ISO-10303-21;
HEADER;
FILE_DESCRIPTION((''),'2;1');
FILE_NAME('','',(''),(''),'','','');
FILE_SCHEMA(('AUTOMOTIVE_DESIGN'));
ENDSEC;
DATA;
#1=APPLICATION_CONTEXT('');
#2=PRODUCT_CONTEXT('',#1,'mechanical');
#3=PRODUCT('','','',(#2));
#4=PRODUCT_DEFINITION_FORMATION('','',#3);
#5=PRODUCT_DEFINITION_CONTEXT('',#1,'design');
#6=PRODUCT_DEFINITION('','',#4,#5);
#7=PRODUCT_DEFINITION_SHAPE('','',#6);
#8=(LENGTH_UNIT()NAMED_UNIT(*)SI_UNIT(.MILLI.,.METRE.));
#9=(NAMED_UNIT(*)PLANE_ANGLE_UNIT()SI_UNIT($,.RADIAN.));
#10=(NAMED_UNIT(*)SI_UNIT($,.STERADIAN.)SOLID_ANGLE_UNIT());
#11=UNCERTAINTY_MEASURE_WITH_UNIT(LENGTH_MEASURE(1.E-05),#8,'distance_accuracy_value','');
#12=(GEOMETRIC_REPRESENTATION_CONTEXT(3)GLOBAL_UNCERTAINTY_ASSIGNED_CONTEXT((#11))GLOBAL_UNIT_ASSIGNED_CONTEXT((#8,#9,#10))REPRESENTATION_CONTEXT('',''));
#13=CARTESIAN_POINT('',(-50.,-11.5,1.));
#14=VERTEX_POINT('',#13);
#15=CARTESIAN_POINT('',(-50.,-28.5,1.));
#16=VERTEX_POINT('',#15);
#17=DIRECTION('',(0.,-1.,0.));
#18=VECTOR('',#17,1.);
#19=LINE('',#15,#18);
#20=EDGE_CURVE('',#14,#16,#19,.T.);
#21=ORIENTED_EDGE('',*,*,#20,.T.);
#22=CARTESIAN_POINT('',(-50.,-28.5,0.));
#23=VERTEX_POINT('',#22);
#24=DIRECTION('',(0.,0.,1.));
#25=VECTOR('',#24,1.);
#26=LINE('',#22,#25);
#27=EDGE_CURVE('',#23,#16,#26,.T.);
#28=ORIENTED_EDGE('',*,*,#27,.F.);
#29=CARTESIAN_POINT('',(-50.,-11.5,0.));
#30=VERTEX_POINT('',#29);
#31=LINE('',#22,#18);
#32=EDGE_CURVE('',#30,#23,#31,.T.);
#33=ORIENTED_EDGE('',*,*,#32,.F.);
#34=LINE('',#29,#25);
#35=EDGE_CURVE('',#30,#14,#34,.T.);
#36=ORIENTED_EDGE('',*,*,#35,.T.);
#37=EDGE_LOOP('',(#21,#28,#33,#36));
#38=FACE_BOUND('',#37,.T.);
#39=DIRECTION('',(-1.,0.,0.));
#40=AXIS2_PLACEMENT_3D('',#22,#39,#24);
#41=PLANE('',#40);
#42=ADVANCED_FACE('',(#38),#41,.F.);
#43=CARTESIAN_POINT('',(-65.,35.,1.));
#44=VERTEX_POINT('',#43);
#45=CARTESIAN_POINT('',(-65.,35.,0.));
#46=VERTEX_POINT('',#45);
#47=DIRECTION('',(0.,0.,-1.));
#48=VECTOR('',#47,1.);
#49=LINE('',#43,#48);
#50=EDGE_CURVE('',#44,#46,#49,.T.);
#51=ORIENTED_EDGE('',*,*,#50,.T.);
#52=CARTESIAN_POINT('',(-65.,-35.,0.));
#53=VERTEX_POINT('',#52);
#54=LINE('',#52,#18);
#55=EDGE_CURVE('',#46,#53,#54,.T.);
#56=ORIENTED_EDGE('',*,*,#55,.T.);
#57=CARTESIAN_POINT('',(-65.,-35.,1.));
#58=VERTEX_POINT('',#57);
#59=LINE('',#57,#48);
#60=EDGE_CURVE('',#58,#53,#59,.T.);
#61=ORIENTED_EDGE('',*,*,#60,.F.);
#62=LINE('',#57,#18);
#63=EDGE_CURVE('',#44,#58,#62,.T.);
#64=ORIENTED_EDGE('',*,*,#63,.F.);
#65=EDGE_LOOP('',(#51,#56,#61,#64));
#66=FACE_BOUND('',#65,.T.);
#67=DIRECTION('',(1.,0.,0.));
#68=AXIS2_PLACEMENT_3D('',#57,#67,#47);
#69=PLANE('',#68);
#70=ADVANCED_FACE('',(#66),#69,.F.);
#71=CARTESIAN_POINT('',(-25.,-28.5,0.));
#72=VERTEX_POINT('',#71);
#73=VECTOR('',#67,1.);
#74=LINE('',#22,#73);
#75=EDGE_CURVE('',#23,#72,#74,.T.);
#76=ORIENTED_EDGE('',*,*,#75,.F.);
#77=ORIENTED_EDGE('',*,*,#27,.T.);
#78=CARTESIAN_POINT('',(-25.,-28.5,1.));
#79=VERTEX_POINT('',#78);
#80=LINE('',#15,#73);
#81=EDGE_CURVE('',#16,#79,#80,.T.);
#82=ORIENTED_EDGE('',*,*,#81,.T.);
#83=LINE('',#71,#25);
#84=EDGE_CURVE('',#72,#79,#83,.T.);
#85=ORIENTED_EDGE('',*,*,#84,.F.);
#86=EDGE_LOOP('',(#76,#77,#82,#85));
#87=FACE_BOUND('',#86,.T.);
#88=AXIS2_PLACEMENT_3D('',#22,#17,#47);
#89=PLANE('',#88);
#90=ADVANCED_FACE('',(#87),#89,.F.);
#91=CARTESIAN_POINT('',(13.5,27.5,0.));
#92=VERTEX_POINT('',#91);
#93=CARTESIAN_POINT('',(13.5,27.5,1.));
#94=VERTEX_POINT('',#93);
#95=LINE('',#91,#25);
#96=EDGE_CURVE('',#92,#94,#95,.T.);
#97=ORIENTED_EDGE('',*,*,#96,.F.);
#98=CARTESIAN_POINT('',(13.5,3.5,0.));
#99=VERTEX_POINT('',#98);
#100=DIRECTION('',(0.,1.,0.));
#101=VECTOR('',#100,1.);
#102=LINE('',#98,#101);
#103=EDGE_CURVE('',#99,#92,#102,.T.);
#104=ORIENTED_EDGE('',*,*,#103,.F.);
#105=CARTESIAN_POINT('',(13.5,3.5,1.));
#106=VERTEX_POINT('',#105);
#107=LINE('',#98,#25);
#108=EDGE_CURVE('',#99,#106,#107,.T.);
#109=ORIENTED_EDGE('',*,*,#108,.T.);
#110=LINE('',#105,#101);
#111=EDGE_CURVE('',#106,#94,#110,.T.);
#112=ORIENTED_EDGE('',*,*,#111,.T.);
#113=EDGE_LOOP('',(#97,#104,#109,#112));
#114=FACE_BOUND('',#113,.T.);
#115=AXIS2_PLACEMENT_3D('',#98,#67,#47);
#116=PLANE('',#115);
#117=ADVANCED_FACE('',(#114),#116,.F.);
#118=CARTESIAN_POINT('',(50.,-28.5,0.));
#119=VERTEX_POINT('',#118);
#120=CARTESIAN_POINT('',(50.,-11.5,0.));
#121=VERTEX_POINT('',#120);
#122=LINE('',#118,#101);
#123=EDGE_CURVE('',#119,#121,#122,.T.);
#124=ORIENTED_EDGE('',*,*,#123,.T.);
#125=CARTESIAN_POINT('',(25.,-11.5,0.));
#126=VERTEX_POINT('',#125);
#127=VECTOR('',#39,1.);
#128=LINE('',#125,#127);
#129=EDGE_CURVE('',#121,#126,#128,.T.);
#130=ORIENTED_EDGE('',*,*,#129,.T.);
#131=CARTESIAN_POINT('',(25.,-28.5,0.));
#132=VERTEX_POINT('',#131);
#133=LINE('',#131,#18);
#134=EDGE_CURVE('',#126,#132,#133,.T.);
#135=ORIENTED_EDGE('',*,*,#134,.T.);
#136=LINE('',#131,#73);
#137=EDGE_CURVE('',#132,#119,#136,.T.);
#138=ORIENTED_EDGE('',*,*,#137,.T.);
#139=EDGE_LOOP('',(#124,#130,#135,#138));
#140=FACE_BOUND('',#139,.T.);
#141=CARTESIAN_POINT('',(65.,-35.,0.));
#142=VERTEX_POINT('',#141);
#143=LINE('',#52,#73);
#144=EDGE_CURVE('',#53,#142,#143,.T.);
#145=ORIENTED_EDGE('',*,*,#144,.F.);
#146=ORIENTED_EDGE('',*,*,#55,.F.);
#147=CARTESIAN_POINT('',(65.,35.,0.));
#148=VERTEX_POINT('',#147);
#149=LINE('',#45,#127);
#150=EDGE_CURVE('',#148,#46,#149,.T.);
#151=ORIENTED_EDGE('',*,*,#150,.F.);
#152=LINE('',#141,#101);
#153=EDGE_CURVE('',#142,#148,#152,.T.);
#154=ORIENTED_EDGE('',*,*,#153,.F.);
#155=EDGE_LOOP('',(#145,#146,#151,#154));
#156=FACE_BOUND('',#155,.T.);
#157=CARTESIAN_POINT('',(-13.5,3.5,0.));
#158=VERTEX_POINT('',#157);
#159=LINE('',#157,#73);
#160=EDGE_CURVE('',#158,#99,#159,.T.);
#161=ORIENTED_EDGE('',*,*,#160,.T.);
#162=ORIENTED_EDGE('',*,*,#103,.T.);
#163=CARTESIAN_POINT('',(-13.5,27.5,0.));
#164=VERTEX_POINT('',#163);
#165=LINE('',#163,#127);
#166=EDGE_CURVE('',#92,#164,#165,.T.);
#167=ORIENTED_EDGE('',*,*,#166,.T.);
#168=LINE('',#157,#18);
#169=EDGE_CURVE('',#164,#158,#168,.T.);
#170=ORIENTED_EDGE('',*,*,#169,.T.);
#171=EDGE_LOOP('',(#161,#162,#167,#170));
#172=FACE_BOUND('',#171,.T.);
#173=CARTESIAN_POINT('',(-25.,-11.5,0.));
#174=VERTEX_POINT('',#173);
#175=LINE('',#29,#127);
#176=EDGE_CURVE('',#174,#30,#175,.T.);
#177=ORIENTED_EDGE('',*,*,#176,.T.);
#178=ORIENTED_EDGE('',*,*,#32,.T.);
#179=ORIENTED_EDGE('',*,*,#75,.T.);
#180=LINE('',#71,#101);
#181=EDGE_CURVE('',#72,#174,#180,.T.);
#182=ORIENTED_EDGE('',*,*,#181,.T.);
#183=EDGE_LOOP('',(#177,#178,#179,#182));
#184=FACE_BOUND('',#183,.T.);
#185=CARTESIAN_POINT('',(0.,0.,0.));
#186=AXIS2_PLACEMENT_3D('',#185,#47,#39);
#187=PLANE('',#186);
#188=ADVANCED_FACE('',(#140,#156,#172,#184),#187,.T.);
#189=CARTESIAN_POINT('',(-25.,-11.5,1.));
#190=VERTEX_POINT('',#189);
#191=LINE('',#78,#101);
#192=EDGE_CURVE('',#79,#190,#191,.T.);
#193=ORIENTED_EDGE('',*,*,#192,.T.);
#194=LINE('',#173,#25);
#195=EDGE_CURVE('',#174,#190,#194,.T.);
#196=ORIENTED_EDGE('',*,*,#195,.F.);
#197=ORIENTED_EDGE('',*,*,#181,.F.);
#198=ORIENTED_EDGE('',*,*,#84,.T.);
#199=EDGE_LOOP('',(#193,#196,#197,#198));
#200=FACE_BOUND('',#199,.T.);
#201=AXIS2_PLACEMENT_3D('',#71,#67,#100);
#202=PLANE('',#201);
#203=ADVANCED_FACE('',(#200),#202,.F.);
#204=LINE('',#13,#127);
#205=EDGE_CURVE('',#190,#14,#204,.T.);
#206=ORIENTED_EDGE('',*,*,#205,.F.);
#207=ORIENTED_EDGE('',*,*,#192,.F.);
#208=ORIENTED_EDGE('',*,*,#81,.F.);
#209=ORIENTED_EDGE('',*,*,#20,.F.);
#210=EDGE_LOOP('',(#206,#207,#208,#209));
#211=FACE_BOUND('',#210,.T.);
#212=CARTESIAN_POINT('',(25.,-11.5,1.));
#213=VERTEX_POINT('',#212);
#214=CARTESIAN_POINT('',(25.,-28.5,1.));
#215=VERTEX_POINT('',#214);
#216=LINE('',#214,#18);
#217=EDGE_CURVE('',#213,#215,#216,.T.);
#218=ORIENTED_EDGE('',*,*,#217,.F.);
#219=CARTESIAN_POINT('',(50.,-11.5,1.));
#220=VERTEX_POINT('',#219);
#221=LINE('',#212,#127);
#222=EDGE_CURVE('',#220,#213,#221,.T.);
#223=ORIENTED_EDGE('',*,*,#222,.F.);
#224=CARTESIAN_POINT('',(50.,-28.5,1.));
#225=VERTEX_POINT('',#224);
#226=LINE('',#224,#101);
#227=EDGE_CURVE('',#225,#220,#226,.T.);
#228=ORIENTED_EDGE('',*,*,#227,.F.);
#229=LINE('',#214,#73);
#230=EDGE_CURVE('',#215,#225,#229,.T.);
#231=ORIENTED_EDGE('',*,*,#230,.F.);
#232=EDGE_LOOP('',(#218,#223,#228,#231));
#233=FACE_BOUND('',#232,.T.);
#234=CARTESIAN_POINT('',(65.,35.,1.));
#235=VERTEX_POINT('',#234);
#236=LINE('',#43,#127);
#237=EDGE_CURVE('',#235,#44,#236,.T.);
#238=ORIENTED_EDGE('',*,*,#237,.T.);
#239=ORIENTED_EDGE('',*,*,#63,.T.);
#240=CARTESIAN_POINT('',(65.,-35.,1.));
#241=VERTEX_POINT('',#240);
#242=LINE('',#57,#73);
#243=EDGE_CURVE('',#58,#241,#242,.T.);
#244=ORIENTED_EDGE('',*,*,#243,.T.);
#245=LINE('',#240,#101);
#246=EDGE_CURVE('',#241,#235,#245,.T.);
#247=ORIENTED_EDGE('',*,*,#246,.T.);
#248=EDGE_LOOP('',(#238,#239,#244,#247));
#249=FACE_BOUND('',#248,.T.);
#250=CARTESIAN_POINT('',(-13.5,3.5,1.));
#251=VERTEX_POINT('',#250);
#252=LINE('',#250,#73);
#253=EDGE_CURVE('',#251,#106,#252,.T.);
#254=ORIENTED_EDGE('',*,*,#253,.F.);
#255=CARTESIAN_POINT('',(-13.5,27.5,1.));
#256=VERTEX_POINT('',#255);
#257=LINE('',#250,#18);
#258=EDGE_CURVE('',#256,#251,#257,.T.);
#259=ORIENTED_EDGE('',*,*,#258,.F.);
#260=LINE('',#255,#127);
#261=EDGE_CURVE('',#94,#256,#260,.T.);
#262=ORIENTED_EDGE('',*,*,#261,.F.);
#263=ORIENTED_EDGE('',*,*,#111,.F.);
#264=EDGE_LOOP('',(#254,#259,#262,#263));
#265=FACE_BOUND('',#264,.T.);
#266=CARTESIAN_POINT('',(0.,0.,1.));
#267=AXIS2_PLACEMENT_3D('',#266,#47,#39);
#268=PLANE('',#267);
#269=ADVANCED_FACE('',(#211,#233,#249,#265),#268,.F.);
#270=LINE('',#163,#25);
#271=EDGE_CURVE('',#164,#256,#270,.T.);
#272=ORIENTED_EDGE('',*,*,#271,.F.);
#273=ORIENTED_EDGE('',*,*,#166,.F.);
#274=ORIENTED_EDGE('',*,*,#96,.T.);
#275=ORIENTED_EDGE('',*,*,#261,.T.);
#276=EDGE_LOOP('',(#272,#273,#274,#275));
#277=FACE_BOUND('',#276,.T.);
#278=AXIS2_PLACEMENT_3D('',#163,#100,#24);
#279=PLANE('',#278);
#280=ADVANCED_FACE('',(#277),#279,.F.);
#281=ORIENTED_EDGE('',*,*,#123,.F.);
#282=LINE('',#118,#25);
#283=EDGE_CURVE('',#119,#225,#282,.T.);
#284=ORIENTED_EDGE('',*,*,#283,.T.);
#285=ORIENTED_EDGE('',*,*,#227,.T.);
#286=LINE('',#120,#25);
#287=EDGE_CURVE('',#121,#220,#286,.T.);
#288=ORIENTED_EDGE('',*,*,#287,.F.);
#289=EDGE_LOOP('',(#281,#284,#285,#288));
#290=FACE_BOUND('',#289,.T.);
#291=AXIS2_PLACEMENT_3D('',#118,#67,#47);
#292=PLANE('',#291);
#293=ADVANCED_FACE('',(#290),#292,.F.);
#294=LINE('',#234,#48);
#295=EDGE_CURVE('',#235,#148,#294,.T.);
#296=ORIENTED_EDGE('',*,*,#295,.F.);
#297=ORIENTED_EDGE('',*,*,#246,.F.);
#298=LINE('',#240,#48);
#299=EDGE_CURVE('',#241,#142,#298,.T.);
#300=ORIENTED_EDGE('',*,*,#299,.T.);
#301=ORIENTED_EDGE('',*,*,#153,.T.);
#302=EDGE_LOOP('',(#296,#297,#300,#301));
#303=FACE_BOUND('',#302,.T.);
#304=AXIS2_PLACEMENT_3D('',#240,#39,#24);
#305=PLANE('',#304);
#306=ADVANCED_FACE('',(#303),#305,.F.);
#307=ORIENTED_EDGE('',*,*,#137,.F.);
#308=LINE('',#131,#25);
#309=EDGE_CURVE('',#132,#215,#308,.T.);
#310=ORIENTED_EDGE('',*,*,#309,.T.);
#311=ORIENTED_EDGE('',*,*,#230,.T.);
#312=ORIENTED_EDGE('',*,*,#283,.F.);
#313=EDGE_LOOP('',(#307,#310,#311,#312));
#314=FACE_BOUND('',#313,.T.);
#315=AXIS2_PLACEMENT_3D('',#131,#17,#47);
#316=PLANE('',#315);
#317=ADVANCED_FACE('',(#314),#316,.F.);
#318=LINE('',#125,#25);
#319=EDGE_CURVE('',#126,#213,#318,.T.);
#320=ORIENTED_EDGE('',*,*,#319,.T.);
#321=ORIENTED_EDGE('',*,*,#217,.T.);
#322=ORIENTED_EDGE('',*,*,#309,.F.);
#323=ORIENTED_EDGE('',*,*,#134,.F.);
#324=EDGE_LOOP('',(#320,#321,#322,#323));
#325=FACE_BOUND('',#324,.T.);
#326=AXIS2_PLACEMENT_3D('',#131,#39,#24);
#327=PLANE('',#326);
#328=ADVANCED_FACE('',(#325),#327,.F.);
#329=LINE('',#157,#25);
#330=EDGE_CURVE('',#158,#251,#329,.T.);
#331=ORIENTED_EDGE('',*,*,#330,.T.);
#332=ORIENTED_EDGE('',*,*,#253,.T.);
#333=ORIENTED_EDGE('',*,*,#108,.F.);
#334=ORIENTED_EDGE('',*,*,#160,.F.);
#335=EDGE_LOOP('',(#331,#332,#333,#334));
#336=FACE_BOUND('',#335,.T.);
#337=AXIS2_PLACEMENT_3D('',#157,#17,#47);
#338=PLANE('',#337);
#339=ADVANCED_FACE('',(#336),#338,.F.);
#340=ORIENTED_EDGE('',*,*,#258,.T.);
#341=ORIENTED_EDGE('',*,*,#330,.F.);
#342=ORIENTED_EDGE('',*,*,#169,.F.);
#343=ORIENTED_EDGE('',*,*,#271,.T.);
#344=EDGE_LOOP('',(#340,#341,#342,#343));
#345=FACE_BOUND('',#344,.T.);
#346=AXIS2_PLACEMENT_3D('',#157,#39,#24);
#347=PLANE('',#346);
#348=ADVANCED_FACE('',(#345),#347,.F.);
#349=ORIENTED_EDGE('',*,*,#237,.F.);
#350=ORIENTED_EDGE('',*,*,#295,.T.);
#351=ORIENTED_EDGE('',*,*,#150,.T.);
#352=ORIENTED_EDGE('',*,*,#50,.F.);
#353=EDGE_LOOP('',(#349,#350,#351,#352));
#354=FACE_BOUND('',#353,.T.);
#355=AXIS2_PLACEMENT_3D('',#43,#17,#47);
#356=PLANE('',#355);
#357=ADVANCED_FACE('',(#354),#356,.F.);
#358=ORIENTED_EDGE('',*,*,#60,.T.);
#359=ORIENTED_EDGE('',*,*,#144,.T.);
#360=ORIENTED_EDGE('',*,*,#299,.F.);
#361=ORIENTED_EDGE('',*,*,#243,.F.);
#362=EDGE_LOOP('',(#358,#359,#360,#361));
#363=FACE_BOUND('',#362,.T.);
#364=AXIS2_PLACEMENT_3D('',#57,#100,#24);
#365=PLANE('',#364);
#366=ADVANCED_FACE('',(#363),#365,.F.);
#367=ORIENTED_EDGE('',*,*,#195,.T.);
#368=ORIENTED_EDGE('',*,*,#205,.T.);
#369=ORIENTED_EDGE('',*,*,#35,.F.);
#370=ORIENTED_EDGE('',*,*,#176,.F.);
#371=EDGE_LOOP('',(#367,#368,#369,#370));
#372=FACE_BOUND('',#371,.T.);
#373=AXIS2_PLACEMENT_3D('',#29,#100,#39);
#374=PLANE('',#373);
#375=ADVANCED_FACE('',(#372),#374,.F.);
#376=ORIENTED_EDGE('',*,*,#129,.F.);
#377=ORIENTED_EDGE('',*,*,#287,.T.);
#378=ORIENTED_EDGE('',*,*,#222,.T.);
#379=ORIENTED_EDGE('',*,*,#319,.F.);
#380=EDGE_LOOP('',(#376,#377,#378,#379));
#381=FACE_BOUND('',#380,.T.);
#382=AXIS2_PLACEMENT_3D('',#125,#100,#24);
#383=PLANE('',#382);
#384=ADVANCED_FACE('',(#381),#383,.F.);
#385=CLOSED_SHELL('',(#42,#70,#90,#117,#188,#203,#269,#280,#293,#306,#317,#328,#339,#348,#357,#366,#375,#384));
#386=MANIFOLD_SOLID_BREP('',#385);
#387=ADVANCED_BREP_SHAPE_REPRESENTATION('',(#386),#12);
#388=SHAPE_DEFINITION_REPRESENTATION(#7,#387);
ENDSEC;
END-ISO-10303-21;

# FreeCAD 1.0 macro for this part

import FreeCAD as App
import Part
import Sketcher
from FreeCAD import Vector


def add_polygon(sketch, points):
    """Adds a closed chain of lines whose ends are joined by coincident constraints."""
    first, n = sketch.GeometryCount, len(points)
    for a, b in zip(points, points[1:] + points[:1]):
        sketch.addGeometry(Part.LineSegment(App.Vector(*a, 0), App.Vector(*b, 0)), False)
    for i in range(n):
        sketch.addConstraint(Sketcher.Constraint("Coincident", first + i, 2, first + (i + 1) % n, 1))

doc = App.newDocument("Part")
params = doc.addObject("Spreadsheet::Sheet", "Params")
for row, (alias, value) in enumerate([
    ("sketch1_width", "130 mm"),
    ("sketch1_height", "70 mm"),
    ("pad1_length", "1 mm"),
    ("sketch2_width", "25 mm"),
    ("sketch2_width2", "27 mm"),
    ("sketch2_height", "17 mm"),
    ("sketch2_height2", "24 mm"),
], start=1):
    params.set(f"A{row}", alias)
    params.set(f"B{row}", "=" + value)
    params.setAlias(f"B{row}", alias)

body = doc.addObject("PartDesign::Body", "Body")

sketch1 = body.newObject("Sketcher::SketchObject", "Sketch")
sketch1.AttachmentSupport = (doc.getObject("XY_Plane"), [""])
sketch1.MapMode = "FlatFace"
add_polygon(sketch1, [(-65, 35), (-65, -35), (65, -35), (65, 35)])
sketch1.addConstraint([
    Sketcher.Constraint("Vertical", 0),
    Sketcher.Constraint("Horizontal", 1),
    Sketcher.Constraint("Vertical", 2),
    Sketcher.Constraint("Horizontal", 3),
    Sketcher.Constraint("Symmetric", 0, 2, 2, 2, -1, 1),
    Sketcher.Constraint("DistanceX", 1, 1, 1, 2, 130.0),
    Sketcher.Constraint("DistanceY", 0, 2, 0, 1, 70.0),
])
sketch1.setExpression("Constraints[9]", "Params.sketch1_width")
sketch1.setExpression("Constraints[10]", "Params.sketch1_height")
pad1 = body.newObject("PartDesign::Pad", "Pad")
pad1.Profile = sketch1
pad1.setExpression("Length", "Params.pad1_length")

sketch2 = body.newObject("Sketcher::SketchObject", "Sketch001")
sketch2.AttachmentSupport = (doc.getObject("XY_Plane"), [""])
sketch2.MapMode = "FlatFace"
sketch2.AttachmentOffset = App.Placement(Vector(0, 0, 1), App.Rotation())
add_polygon(sketch2, [(-50, -12), (-50, -28), (-25, -28), (-25, -12)])
add_polygon(sketch2, [(25, -12), (25, -28), (50, -28), (50, -12)])
add_polygon(sketch2, [(-14, 28), (-14, 4), (14, 4), (14, 28)])
sketch2.addConstraint([
    Sketcher.Constraint("Vertical", 0),
    Sketcher.Constraint("Horizontal", 1),
    Sketcher.Constraint("Vertical", 2),
    Sketcher.Constraint("Horizontal", 3),
    Sketcher.Constraint("Vertical", 4),
    Sketcher.Constraint("Horizontal", 5),
    Sketcher.Constraint("Vertical", 6),
    Sketcher.Constraint("Horizontal", 7),
    Sketcher.Constraint("Vertical", 8),
    Sketcher.Constraint("Horizontal", 9),
    Sketcher.Constraint("Vertical", 10),
    Sketcher.Constraint("Horizontal", 11),
    Sketcher.Constraint("Symmetric", 1, 2, 4, 2, -2),
    Sketcher.Constraint("Symmetric", 3, 2, 6, 2, -2),
    Sketcher.Constraint("DistanceX", 1, 1, 1, 2, 25.0),
    Sketcher.Constraint("DistanceX", 9, 1, 9, 2, 27.0),
    Sketcher.Constraint("DistanceY", 0, 2, 0, 1, 17.0),
    Sketcher.Constraint("DistanceY", 8, 2, 8, 1, 24.0),
    Sketcher.Constraint("DistanceX", 0, 2, -1, 1, 50.0),
    Sketcher.Constraint("DistanceY", 2, 2, 8, 2, 15.0),
    Sketcher.Constraint("DistanceY", 0, 2, -1, 1, 28.5),
    Sketcher.Constraint("DistanceX", 8, 2, -1, 1, 13.5),
])
sketch2.setExpression("Constraints[26]", "Params.sketch2_width")
sketch2.setExpression("Constraints[27]", "Params.sketch2_width2")
sketch2.setExpression("Constraints[28]", "Params.sketch2_height")
sketch2.setExpression("Constraints[29]", "Params.sketch2_height2")
pocket1 = body.newObject("PartDesign::Pocket", "Pocket")
pocket1.Profile = sketch2
pocket1.Type = "ThroughAll"

doc.recompute()
